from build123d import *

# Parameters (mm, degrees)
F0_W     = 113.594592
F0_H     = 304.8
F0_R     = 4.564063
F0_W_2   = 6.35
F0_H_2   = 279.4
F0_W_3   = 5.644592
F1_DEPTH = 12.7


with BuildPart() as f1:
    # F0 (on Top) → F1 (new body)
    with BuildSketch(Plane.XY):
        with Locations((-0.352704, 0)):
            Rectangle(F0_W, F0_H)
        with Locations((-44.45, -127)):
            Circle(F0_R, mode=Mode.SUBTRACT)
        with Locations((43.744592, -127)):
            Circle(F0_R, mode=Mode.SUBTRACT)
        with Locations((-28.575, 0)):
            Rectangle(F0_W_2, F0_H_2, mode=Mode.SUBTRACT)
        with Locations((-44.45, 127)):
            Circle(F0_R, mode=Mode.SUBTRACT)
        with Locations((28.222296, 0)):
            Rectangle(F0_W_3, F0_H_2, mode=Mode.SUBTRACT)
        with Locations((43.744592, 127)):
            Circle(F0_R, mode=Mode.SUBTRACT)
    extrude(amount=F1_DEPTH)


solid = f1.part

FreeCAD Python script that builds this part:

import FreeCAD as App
import Part
import Sketcher
from FreeCAD import Vector
Q = App.Units.Quantity


def add_polygon(sketch, points):
    """Adds a closed chain of lines whose ends are joined by coincident constraints."""
    first, n = sketch.GeometryCount, len(points)
    for a, b in zip(points, points[1:] + points[:1]):
        sketch.addGeometry(Part.LineSegment(App.Vector(*a, 0), App.Vector(*b, 0)), False)
    for i in range(n):
        sketch.addConstraint(Sketcher.Constraint("Coincident", first + i, 2, first + (i + 1) % n, 1))

doc = App.newDocument("Part")
body = doc.addObject("PartDesign::Body", "Body")

sketch1 = body.newObject("Sketcher::SketchObject", "Sketch")
sketch1.AttachmentSupport = (doc.getObject("XY_Plane"), [""])
sketch1.MapMode = "FlatFace"
add_polygon(sketch1, [(-57.1, 152.4), (-57.1, -152.4), (56.4, -152.4), (56.4, 152.4)])
sketch1.addGeometry(Part.Circle(Vector(-44.5, -127, 0), Vector(0, 0, 1), 4.6), False)
sketch1.addGeometry(Part.Circle(Vector(43.7, -127, 0), Vector(0, 0, 1), 4.6), False)
add_polygon(sketch1, [(-25.4, -139.7), (-31.8, -139.7), (-31.8, 139.7), (-25.4, 139.7)])
sketch1.addGeometry(Part.Circle(Vector(-44.5, 127, 0), Vector(0, 0, 1), 4.6), False)
add_polygon(sketch1, [(31, -139.7), (25.4, -139.7), (25.4, 139.7), (31, 139.7)])
sketch1.addGeometry(Part.Circle(Vector(43.7, 127, 0), Vector(0, 0, 1), 4.6), False)
sketch1.addConstraint([
    Sketcher.Constraint("Vertical", 0),
    Sketcher.Constraint("Horizontal", 1),
    Sketcher.Constraint("Vertical", 2),
    Sketcher.Constraint("Horizontal", 3),
    Sketcher.Constraint("Horizontal", 6),
    Sketcher.Constraint("Vertical", 7),
    Sketcher.Constraint("Horizontal", 8),
    Sketcher.Constraint("Vertical", 9),
    Sketcher.Constraint("Horizontal", 11),
    Sketcher.Constraint("Vertical", 12),
    Sketcher.Constraint("Horizontal", 13),
    Sketcher.Constraint("Vertical", 14),
    Sketcher.Constraint("Equal", 4, 5),
    Sketcher.Constraint("Equal", 5, 10),
    Sketcher.Constraint("Equal", 10, 15),
    Sketcher.Constraint("Symmetric", 8, 2, 11, 2, -1, 1),
    Sketcher.Constraint("Symmetric", 4, 3, 10, 3, -1),
    Sketcher.Constraint("Symmetric", 5, 3, 15, 3, -1),
    Sketcher.Constraint("Horizontal", 4, 3, 5, 3),
    Sketcher.Constraint("Horizontal", 9, 2, 11, 2),
    Sketcher.Constraint("Horizontal", 8, 2, 12, 2),
    Sketcher.Constraint("DistanceY", 0, 2, 0, 1, Q("12 in")),
    Sketcher.Constraint("DistanceY", 7, 1, 7, 2, Q("11 in")),
    Sketcher.Constraint("Diameter", 4, Q("0.359375 in")),
    Sketcher.Constraint("DistanceY", 4, 3, -1, 1, Q("5 in")),
    Sketcher.Constraint("DistanceY", 0, 2, -1, 1, Q("6 in")),
    Sketcher.Constraint("DistanceX", 8, 2, -1, 1, Q("1 in")),
    Sketcher.Constraint("DistanceX", 0, 2, 6, 2, Q("1 in")),
    Sketcher.Constraint("DistanceX", 13, 2, 2, 2, Q("1 in")),
    Sketcher.Constraint("DistanceX", 6, 2, 6, 1, Q("0.25 in")),
    Sketcher.Constraint("DistanceX", 0, 2, 4, 3, Q("0.5 in")),
    Sketcher.Constraint("DistanceX", 5, 3, 1, 2, Q("0.5 in")),
    Sketcher.Constraint("DistanceX", 1, 1, 1, 2, 113.594592),
])
pad1 = body.newObject("PartDesign::Pad", "Pad")
pad1.Profile = sketch1
pad1.Length = Q("0.5 in")

doc.recompute()
